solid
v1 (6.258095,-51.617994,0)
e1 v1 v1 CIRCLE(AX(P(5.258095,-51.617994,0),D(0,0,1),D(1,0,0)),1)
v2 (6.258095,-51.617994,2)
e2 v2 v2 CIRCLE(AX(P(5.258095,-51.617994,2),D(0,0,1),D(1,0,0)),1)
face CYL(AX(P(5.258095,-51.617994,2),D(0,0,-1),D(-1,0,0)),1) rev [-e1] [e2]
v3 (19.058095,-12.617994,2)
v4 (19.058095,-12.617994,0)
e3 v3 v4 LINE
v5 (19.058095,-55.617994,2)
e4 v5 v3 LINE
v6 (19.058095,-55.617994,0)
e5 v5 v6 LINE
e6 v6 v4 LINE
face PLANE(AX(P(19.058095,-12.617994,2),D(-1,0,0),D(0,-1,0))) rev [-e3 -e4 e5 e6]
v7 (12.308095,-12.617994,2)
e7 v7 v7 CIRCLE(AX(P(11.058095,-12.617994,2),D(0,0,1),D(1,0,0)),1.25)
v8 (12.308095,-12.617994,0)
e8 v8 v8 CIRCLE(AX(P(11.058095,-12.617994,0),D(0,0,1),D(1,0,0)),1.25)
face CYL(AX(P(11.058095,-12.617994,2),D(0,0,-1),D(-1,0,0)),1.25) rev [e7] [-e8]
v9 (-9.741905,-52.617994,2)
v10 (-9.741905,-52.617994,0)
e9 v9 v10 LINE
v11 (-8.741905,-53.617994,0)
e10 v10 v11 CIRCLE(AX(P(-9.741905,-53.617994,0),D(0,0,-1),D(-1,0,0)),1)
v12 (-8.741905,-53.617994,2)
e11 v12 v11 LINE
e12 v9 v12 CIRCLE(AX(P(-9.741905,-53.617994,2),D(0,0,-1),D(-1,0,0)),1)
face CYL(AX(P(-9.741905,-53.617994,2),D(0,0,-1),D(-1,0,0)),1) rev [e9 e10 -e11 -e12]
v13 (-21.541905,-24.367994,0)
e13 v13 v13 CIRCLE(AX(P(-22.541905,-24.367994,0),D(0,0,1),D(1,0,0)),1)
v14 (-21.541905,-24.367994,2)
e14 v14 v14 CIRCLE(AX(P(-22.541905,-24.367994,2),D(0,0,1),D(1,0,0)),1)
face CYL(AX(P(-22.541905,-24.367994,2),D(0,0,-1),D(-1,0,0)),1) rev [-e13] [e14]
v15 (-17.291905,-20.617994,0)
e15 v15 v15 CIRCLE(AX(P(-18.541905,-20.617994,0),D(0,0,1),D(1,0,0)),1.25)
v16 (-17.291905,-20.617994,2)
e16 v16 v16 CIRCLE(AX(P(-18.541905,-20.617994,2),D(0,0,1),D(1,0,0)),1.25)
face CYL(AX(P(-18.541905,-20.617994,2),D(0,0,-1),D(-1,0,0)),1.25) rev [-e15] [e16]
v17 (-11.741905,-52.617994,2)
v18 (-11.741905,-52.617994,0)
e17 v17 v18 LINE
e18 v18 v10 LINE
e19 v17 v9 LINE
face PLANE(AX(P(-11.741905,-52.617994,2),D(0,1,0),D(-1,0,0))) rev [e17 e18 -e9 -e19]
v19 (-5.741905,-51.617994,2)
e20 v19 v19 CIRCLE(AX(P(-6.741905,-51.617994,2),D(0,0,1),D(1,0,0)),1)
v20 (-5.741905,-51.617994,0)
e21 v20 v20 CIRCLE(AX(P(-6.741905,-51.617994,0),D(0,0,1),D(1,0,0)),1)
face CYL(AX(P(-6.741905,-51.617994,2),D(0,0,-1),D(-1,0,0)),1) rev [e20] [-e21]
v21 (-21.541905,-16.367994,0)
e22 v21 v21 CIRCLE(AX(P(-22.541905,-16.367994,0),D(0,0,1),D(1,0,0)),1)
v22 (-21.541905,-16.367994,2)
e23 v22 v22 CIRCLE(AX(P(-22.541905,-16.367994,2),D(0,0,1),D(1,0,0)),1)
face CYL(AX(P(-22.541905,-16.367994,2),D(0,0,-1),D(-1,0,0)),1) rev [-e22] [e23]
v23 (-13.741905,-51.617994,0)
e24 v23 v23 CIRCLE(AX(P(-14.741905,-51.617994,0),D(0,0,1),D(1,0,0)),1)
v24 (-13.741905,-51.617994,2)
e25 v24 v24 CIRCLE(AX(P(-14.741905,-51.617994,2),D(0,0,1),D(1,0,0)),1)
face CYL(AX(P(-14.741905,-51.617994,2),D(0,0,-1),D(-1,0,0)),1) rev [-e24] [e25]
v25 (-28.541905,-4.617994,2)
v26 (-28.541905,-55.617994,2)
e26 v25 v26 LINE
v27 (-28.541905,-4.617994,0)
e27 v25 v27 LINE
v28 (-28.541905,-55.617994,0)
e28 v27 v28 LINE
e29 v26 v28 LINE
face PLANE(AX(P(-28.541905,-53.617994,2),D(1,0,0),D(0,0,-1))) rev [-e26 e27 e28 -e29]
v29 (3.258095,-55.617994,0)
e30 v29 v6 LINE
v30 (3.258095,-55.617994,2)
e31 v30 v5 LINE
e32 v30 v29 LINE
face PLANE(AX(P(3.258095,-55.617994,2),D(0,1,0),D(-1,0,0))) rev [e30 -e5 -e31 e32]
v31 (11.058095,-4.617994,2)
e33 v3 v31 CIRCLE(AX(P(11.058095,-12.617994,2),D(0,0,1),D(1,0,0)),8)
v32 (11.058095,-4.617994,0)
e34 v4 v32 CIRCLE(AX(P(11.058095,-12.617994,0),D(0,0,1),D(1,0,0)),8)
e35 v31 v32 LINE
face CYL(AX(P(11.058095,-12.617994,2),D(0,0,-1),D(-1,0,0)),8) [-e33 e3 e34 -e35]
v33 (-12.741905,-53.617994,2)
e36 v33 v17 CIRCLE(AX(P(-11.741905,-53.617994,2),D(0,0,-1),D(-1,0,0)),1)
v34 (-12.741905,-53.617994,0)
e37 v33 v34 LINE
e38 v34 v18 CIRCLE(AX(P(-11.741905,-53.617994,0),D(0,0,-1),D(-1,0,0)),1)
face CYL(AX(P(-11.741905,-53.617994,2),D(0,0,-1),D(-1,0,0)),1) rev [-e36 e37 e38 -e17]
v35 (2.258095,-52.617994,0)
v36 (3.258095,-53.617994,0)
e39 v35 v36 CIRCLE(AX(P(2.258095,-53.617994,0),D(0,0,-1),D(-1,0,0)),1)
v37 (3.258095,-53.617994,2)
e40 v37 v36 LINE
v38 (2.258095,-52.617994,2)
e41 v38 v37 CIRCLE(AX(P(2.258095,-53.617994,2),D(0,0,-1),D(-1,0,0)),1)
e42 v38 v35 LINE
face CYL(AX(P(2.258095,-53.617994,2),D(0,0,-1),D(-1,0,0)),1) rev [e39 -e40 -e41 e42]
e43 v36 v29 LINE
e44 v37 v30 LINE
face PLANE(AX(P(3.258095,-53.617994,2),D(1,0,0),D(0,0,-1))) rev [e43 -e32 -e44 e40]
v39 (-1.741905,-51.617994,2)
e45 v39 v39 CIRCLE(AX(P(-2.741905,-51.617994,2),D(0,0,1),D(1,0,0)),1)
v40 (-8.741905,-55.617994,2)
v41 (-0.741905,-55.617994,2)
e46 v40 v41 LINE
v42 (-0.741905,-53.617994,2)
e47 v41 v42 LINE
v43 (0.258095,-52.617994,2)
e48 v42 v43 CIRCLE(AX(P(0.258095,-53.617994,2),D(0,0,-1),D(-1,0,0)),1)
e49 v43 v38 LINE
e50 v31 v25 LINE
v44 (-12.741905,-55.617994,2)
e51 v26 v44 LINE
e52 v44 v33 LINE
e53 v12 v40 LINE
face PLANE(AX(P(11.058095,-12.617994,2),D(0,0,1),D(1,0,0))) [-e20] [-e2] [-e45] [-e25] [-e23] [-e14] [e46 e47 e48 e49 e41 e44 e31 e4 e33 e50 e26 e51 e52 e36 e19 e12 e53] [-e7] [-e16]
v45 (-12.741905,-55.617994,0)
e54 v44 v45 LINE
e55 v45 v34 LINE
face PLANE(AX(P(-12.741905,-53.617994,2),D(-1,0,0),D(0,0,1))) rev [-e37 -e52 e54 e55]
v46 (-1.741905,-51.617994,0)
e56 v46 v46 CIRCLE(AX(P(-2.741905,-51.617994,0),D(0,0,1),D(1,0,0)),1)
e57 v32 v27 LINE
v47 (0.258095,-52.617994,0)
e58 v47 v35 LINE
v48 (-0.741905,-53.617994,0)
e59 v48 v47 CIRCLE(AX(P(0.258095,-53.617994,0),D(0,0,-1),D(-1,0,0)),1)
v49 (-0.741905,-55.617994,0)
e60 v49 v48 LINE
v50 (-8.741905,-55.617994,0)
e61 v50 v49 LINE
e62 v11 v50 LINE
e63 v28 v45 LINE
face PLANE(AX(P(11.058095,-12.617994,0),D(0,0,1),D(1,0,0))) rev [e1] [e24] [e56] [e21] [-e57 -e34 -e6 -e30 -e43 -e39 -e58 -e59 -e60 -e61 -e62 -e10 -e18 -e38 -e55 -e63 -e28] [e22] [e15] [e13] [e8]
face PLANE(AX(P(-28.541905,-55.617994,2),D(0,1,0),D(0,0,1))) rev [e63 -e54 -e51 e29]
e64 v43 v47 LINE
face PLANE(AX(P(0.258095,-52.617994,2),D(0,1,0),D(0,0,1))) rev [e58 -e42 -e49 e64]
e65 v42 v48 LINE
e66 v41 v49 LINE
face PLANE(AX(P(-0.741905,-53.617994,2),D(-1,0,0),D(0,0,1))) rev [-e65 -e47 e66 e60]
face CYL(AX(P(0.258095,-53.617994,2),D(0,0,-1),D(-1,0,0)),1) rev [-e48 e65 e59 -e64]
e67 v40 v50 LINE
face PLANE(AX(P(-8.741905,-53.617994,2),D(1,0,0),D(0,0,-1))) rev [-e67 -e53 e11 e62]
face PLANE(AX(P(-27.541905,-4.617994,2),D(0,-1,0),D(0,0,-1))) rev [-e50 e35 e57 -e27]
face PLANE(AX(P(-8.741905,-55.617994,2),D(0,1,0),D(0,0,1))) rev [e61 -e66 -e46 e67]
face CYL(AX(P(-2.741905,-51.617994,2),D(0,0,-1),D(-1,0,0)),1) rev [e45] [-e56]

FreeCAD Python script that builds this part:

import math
import FreeCAD as App
import Part
import Sketcher
from FreeCAD import Vector

doc = App.newDocument("Part")
params = doc.addObject("Spreadsheet::Sheet", "Params")
for row, (alias, value) in enumerate([
    ("sketch1_diameter", "2 mm"),
    ("sketch1_radius", "8 mm"),
    ("sketch1_diameter2", "2.5 mm"),
    ("sketch1_width", "2 mm"),
    ("sketch1_width2", "8 mm"),
    ("pad1_length", "2 mm"),
], start=1):
    params.set(f"A{row}", alias)
    params.set(f"B{row}", "=" + value)
    params.setAlias(f"B{row}", alias)

body = doc.addObject("PartDesign::Body", "Body")

sketch1 = body.newObject("Sketcher::SketchObject", "Sketch")
sketch1.AttachmentSupport = (doc.getObject("XY_Plane"), [""])
sketch1.MapMode = "FlatFace"
sketch1.addGeometry(Part.LineSegment(Vector(-28.5, -55.6, 0), Vector(-12.7, -55.6, 0)), False)
sketch1.addGeometry(Part.LineSegment(Vector(-12.7, -55.6, 0), Vector(-12.7, -53.6, 0)), False)
sketch1.addGeometry(Part.ArcOfCircle(Part.Circle(Vector(-11.7, -53.6, 0), Vector(0, 0, 1), 1), math.radians(90), math.radians(180)), False)
sketch1.addGeometry(Part.LineSegment(Vector(-11.7, -52.6, 0), Vector(-9.7, -52.6, 0)), False)
sketch1.addGeometry(Part.ArcOfCircle(Part.Circle(Vector(-9.7, -53.6, 0), Vector(0, 0, 1), 1), math.radians(0), math.radians(90)), False)
sketch1.addGeometry(Part.LineSegment(Vector(-8.7, -53.6, 0), Vector(-8.7, -55.6, 0)), False)
sketch1.addGeometry(Part.LineSegment(Vector(-8.7, -55.6, 0), Vector(-0.7, -55.6, 0)), False)
sketch1.addGeometry(Part.LineSegment(Vector(-0.7, -55.6, 0), Vector(-0.7, -53.6, 0)), False)
sketch1.addGeometry(Part.ArcOfCircle(Part.Circle(Vector(0.3, -53.6, 0), Vector(0, 0, 1), 1), math.radians(90), math.radians(180)), False)
sketch1.addGeometry(Part.LineSegment(Vector(0.3, -52.6, 0), Vector(2.3, -52.6, 0)), False)
sketch1.addGeometry(Part.ArcOfCircle(Part.Circle(Vector(2.3, -53.6, 0), Vector(0, 0, 1), 1), math.radians(0), math.radians(90)), False)
sketch1.addGeometry(Part.LineSegment(Vector(3.3, -53.6, 0), Vector(3.3, -55.6, 0)), False)
sketch1.addGeometry(Part.LineSegment(Vector(3.3, -55.6, 0), Vector(19.1, -55.6, 0)), False)
sketch1.addGeometry(Part.LineSegment(Vector(19.1, -55.6, 0), Vector(19.1, -12.6, 0)), False)
sketch1.addGeometry(Part.ArcOfCircle(Part.Circle(Vector(11.1, -12.6, 0), Vector(0, 0, 1), 8), math.radians(0), math.radians(90)), False)
sketch1.addGeometry(Part.LineSegment(Vector(11.1, -4.6, 0), Vector(-28.5, -4.6, 0)), False)
sketch1.addGeometry(Part.LineSegment(Vector(-28.5, -4.6, 0), Vector(-28.5, -55.6, 0)), False)
sketch1.addGeometry(Part.Circle(Vector(-14.7, -51.6, 0), Vector(0, 0, 1), 1), False)
sketch1.addGeometry(Part.Circle(Vector(-6.7, -51.6, 0), Vector(0, 0, 1), 1), False)
sketch1.addGeometry(Part.Circle(Vector(-2.7, -51.6, 0), Vector(0, 0, 1), 1), False)
sketch1.addGeometry(Part.Circle(Vector(5.3, -51.6, 0), Vector(0, 0, 1), 1), False)
sketch1.addGeometry(Part.Circle(Vector(-22.5, -24.4, 0), Vector(0, 0, 1), 1), False)
sketch1.addGeometry(Part.Circle(Vector(-18.5, -20.6, 0), Vector(0, 0, 1), 1.2), False)
sketch1.addGeometry(Part.Circle(Vector(-22.5, -16.4, 0), Vector(0, 0, 1), 1), False)
sketch1.addGeometry(Part.Circle(Vector(11.1, -12.6, 0), Vector(0, 0, 1), 1.2), False)
sketch1.addConstraint(Sketcher.Constraint("Coincident", 0, 2, 1, 1))
sketch1.addConstraint(Sketcher.Constraint("Tangent", 1, 2, 2, 2))
sketch1.addConstraint(Sketcher.Constraint("Tangent", 2, 1, 3, 1))
sketch1.addConstraint(Sketcher.Constraint("Tangent", 3, 2, 4, 2))
sketch1.addConstraint(Sketcher.Constraint("Tangent", 4, 1, 5, 1))
sketch1.addConstraint(Sketcher.Constraint("Coincident", 5, 2, 6, 1))
sketch1.addConstraint(Sketcher.Constraint("Coincident", 6, 2, 7, 1))
sketch1.addConstraint(Sketcher.Constraint("Tangent", 7, 2, 8, 2))
sketch1.addConstraint(Sketcher.Constraint("Tangent", 8, 1, 9, 1))
sketch1.addConstraint(Sketcher.Constraint("Tangent", 9, 2, 10, 2))
sketch1.addConstraint(Sketcher.Constraint("Tangent", 10, 1, 11, 1))
sketch1.addConstraint(Sketcher.Constraint("Coincident", 11, 2, 12, 1))
sketch1.addConstraint(Sketcher.Constraint("Coincident", 12, 2, 13, 1))
sketch1.addConstraint(Sketcher.Constraint("Tangent", 13, 2, 14, 1))
sketch1.addConstraint(Sketcher.Constraint("Tangent", 14, 2, 15, 1))
sketch1.addConstraint(Sketcher.Constraint("Coincident", 15, 2, 16, 1))
sketch1.addConstraint(Sketcher.Constraint("Coincident", 16, 2, 0, 1))
sketch1.addConstraint(Sketcher.Constraint("Horizontal", 0))
sketch1.addConstraint(Sketcher.Constraint("Vertical", 1))
sketch1.addConstraint(Sketcher.Constraint("Horizontal", 3))
sketch1.addConstraint(Sketcher.Constraint("Vertical", 5))
sketch1.addConstraint(Sketcher.Constraint("Horizontal", 6))
sketch1.addConstraint(Sketcher.Constraint("Vertical", 7))
sketch1.addConstraint(Sketcher.Constraint("Horizontal", 9))
sketch1.addConstraint(Sketcher.Constraint("Vertical", 11))
sketch1.addConstraint(Sketcher.Constraint("Horizontal", 12))
sketch1.addConstraint(Sketcher.Constraint("Vertical", 13))
sketch1.addConstraint(Sketcher.Constraint("Horizontal", 15))
sketch1.addConstraint(Sketcher.Constraint("Vertical", 16))
sketch1.addConstraint(Sketcher.Constraint("Coincident", 24, 3, 14, 3))
sketch1.addConstraint(Sketcher.Constraint("Equal", 2, 4))
sketch1.addConstraint(Sketcher.Constraint("Equal", 4, 8))
sketch1.addConstraint(Sketcher.Constraint("Equal", 8, 10))
sketch1.addConstraint(Sketcher.Constraint("Equal", 10, 17))
sketch1.addConstraint(Sketcher.Constraint("Equal", 17, 18))
sketch1.addConstraint(Sketcher.Constraint("Equal", 18, 19))
sketch1.addConstraint(Sketcher.Constraint("Equal", 19, 20))
sketch1.addConstraint(Sketcher.Constraint("Equal", 20, 21))
sketch1.addConstraint(Sketcher.Constraint("Equal", 21, 23))
sketch1.addConstraint(Sketcher.Constraint("Equal", 22, 24))
sketch1.addConstraint(Sketcher.Constraint("Horizontal", 4, 3, 8, 3))
sketch1.addConstraint(Sketcher.Constraint("Horizontal", 17, 3, 18, 3))
sketch1.addConstraint(Sketcher.Constraint("Horizontal", 18, 3, 19, 3))
sketch1.addConstraint(Sketcher.Constraint("Horizontal", 19, 3, 20, 3))
sketch1.addConstraint(Sketcher.Constraint("Horizontal", 0, 2, 5, 2))
sketch1.addConstraint(Sketcher.Constraint("Horizontal", 6, 2, 11, 2))
sketch1.addConstraint(Sketcher.Constraint("Vertical", 21, 3, 23, 3))
sketch1.addConstraint(Sketcher.Constraint("Equal", 3, 9))
sketch1.addConstraint(Sketcher.Constraint("Equal", 0, 12))
sketch1.addConstraint(Sketcher.Constraint("Equal", 9, 1))
sketch1.addConstraint(Sketcher.Constraint("Diameter", 17, 2.0))
sketch1.addConstraint(Sketcher.Constraint("Radius", 14, 8.0))
sketch1.addConstraint(Sketcher.Constraint("Diameter", 22, 2.5))
sketch1.addConstraint(Sketcher.Constraint("DistanceX", 3, 1, 3, 2, 2.0))
sketch1.addConstraint(Sketcher.Constraint("DistanceX", 6, 1, 6, 2, 8.0))
sketch1.addConstraint(Sketcher.Constraint("DistanceY", 13, 1, 13, 2, 43.0))
sketch1.addConstraint(Sketcher.Constraint("DistanceX", 0, 1, 0, 2, 15.8))
sketch1.addConstraint(Sketcher.Constraint("DistanceX", 17, 3, 2, 3, 3.0))
sketch1.addConstraint(Sketcher.Constraint("DistanceY", 2, 3, 17, 3, 2.0))
sketch1.addConstraint(Sketcher.Constraint("DistanceX", 4, 3, 18, 3, 3.0))
sketch1.addConstraint(Sketcher.Constraint("DistanceX", 19, 3, 8, 3, 3.0))
sketch1.addConstraint(Sketcher.Constraint("DistanceX", 10, 3, 20, 3, 3.0))
sketch1.addConstraint(Sketcher.Constraint("DistanceX", 21, 3, 22, 3, 4.0))
sketch1.addConstraint(Sketcher.Constraint("DistanceY", 22, 3, 14, 3, 8.0))
sketch1.addConstraint(Sketcher.Constraint("DistanceY", 21, 3, 23, 3, 8.0))
sketch1.addConstraint(Sketcher.Constraint("DistanceX", 15, 2, 23, 3, 6.0))
sketch1.addConstraint(Sketcher.Constraint("DistanceY", 17, 3, 21, 3, 27.25))
sketch1.addConstraint(Sketcher.Constraint("DistanceX", 2, 3, -1, 1, 11.741905))
sketch1.addConstraint(Sketcher.Constraint("DistanceY", 2, 3, -1, 1, 53.617994))
sketch1.setExpression("Constraints[50]", "Params.sketch1_diameter")
sketch1.setExpression("Constraints[51]", "Params.sketch1_radius")
sketch1.setExpression("Constraints[52]", "Params.sketch1_diameter2")
sketch1.setExpression("Constraints[53]", "Params.sketch1_width")
sketch1.setExpression("Constraints[54]", "Params.sketch1_width2")
pad1 = body.newObject("PartDesign::Pad", "Pad")
pad1.Profile = sketch1
pad1.setExpression("Length", "Params.pad1_length")

doc.recompute()
